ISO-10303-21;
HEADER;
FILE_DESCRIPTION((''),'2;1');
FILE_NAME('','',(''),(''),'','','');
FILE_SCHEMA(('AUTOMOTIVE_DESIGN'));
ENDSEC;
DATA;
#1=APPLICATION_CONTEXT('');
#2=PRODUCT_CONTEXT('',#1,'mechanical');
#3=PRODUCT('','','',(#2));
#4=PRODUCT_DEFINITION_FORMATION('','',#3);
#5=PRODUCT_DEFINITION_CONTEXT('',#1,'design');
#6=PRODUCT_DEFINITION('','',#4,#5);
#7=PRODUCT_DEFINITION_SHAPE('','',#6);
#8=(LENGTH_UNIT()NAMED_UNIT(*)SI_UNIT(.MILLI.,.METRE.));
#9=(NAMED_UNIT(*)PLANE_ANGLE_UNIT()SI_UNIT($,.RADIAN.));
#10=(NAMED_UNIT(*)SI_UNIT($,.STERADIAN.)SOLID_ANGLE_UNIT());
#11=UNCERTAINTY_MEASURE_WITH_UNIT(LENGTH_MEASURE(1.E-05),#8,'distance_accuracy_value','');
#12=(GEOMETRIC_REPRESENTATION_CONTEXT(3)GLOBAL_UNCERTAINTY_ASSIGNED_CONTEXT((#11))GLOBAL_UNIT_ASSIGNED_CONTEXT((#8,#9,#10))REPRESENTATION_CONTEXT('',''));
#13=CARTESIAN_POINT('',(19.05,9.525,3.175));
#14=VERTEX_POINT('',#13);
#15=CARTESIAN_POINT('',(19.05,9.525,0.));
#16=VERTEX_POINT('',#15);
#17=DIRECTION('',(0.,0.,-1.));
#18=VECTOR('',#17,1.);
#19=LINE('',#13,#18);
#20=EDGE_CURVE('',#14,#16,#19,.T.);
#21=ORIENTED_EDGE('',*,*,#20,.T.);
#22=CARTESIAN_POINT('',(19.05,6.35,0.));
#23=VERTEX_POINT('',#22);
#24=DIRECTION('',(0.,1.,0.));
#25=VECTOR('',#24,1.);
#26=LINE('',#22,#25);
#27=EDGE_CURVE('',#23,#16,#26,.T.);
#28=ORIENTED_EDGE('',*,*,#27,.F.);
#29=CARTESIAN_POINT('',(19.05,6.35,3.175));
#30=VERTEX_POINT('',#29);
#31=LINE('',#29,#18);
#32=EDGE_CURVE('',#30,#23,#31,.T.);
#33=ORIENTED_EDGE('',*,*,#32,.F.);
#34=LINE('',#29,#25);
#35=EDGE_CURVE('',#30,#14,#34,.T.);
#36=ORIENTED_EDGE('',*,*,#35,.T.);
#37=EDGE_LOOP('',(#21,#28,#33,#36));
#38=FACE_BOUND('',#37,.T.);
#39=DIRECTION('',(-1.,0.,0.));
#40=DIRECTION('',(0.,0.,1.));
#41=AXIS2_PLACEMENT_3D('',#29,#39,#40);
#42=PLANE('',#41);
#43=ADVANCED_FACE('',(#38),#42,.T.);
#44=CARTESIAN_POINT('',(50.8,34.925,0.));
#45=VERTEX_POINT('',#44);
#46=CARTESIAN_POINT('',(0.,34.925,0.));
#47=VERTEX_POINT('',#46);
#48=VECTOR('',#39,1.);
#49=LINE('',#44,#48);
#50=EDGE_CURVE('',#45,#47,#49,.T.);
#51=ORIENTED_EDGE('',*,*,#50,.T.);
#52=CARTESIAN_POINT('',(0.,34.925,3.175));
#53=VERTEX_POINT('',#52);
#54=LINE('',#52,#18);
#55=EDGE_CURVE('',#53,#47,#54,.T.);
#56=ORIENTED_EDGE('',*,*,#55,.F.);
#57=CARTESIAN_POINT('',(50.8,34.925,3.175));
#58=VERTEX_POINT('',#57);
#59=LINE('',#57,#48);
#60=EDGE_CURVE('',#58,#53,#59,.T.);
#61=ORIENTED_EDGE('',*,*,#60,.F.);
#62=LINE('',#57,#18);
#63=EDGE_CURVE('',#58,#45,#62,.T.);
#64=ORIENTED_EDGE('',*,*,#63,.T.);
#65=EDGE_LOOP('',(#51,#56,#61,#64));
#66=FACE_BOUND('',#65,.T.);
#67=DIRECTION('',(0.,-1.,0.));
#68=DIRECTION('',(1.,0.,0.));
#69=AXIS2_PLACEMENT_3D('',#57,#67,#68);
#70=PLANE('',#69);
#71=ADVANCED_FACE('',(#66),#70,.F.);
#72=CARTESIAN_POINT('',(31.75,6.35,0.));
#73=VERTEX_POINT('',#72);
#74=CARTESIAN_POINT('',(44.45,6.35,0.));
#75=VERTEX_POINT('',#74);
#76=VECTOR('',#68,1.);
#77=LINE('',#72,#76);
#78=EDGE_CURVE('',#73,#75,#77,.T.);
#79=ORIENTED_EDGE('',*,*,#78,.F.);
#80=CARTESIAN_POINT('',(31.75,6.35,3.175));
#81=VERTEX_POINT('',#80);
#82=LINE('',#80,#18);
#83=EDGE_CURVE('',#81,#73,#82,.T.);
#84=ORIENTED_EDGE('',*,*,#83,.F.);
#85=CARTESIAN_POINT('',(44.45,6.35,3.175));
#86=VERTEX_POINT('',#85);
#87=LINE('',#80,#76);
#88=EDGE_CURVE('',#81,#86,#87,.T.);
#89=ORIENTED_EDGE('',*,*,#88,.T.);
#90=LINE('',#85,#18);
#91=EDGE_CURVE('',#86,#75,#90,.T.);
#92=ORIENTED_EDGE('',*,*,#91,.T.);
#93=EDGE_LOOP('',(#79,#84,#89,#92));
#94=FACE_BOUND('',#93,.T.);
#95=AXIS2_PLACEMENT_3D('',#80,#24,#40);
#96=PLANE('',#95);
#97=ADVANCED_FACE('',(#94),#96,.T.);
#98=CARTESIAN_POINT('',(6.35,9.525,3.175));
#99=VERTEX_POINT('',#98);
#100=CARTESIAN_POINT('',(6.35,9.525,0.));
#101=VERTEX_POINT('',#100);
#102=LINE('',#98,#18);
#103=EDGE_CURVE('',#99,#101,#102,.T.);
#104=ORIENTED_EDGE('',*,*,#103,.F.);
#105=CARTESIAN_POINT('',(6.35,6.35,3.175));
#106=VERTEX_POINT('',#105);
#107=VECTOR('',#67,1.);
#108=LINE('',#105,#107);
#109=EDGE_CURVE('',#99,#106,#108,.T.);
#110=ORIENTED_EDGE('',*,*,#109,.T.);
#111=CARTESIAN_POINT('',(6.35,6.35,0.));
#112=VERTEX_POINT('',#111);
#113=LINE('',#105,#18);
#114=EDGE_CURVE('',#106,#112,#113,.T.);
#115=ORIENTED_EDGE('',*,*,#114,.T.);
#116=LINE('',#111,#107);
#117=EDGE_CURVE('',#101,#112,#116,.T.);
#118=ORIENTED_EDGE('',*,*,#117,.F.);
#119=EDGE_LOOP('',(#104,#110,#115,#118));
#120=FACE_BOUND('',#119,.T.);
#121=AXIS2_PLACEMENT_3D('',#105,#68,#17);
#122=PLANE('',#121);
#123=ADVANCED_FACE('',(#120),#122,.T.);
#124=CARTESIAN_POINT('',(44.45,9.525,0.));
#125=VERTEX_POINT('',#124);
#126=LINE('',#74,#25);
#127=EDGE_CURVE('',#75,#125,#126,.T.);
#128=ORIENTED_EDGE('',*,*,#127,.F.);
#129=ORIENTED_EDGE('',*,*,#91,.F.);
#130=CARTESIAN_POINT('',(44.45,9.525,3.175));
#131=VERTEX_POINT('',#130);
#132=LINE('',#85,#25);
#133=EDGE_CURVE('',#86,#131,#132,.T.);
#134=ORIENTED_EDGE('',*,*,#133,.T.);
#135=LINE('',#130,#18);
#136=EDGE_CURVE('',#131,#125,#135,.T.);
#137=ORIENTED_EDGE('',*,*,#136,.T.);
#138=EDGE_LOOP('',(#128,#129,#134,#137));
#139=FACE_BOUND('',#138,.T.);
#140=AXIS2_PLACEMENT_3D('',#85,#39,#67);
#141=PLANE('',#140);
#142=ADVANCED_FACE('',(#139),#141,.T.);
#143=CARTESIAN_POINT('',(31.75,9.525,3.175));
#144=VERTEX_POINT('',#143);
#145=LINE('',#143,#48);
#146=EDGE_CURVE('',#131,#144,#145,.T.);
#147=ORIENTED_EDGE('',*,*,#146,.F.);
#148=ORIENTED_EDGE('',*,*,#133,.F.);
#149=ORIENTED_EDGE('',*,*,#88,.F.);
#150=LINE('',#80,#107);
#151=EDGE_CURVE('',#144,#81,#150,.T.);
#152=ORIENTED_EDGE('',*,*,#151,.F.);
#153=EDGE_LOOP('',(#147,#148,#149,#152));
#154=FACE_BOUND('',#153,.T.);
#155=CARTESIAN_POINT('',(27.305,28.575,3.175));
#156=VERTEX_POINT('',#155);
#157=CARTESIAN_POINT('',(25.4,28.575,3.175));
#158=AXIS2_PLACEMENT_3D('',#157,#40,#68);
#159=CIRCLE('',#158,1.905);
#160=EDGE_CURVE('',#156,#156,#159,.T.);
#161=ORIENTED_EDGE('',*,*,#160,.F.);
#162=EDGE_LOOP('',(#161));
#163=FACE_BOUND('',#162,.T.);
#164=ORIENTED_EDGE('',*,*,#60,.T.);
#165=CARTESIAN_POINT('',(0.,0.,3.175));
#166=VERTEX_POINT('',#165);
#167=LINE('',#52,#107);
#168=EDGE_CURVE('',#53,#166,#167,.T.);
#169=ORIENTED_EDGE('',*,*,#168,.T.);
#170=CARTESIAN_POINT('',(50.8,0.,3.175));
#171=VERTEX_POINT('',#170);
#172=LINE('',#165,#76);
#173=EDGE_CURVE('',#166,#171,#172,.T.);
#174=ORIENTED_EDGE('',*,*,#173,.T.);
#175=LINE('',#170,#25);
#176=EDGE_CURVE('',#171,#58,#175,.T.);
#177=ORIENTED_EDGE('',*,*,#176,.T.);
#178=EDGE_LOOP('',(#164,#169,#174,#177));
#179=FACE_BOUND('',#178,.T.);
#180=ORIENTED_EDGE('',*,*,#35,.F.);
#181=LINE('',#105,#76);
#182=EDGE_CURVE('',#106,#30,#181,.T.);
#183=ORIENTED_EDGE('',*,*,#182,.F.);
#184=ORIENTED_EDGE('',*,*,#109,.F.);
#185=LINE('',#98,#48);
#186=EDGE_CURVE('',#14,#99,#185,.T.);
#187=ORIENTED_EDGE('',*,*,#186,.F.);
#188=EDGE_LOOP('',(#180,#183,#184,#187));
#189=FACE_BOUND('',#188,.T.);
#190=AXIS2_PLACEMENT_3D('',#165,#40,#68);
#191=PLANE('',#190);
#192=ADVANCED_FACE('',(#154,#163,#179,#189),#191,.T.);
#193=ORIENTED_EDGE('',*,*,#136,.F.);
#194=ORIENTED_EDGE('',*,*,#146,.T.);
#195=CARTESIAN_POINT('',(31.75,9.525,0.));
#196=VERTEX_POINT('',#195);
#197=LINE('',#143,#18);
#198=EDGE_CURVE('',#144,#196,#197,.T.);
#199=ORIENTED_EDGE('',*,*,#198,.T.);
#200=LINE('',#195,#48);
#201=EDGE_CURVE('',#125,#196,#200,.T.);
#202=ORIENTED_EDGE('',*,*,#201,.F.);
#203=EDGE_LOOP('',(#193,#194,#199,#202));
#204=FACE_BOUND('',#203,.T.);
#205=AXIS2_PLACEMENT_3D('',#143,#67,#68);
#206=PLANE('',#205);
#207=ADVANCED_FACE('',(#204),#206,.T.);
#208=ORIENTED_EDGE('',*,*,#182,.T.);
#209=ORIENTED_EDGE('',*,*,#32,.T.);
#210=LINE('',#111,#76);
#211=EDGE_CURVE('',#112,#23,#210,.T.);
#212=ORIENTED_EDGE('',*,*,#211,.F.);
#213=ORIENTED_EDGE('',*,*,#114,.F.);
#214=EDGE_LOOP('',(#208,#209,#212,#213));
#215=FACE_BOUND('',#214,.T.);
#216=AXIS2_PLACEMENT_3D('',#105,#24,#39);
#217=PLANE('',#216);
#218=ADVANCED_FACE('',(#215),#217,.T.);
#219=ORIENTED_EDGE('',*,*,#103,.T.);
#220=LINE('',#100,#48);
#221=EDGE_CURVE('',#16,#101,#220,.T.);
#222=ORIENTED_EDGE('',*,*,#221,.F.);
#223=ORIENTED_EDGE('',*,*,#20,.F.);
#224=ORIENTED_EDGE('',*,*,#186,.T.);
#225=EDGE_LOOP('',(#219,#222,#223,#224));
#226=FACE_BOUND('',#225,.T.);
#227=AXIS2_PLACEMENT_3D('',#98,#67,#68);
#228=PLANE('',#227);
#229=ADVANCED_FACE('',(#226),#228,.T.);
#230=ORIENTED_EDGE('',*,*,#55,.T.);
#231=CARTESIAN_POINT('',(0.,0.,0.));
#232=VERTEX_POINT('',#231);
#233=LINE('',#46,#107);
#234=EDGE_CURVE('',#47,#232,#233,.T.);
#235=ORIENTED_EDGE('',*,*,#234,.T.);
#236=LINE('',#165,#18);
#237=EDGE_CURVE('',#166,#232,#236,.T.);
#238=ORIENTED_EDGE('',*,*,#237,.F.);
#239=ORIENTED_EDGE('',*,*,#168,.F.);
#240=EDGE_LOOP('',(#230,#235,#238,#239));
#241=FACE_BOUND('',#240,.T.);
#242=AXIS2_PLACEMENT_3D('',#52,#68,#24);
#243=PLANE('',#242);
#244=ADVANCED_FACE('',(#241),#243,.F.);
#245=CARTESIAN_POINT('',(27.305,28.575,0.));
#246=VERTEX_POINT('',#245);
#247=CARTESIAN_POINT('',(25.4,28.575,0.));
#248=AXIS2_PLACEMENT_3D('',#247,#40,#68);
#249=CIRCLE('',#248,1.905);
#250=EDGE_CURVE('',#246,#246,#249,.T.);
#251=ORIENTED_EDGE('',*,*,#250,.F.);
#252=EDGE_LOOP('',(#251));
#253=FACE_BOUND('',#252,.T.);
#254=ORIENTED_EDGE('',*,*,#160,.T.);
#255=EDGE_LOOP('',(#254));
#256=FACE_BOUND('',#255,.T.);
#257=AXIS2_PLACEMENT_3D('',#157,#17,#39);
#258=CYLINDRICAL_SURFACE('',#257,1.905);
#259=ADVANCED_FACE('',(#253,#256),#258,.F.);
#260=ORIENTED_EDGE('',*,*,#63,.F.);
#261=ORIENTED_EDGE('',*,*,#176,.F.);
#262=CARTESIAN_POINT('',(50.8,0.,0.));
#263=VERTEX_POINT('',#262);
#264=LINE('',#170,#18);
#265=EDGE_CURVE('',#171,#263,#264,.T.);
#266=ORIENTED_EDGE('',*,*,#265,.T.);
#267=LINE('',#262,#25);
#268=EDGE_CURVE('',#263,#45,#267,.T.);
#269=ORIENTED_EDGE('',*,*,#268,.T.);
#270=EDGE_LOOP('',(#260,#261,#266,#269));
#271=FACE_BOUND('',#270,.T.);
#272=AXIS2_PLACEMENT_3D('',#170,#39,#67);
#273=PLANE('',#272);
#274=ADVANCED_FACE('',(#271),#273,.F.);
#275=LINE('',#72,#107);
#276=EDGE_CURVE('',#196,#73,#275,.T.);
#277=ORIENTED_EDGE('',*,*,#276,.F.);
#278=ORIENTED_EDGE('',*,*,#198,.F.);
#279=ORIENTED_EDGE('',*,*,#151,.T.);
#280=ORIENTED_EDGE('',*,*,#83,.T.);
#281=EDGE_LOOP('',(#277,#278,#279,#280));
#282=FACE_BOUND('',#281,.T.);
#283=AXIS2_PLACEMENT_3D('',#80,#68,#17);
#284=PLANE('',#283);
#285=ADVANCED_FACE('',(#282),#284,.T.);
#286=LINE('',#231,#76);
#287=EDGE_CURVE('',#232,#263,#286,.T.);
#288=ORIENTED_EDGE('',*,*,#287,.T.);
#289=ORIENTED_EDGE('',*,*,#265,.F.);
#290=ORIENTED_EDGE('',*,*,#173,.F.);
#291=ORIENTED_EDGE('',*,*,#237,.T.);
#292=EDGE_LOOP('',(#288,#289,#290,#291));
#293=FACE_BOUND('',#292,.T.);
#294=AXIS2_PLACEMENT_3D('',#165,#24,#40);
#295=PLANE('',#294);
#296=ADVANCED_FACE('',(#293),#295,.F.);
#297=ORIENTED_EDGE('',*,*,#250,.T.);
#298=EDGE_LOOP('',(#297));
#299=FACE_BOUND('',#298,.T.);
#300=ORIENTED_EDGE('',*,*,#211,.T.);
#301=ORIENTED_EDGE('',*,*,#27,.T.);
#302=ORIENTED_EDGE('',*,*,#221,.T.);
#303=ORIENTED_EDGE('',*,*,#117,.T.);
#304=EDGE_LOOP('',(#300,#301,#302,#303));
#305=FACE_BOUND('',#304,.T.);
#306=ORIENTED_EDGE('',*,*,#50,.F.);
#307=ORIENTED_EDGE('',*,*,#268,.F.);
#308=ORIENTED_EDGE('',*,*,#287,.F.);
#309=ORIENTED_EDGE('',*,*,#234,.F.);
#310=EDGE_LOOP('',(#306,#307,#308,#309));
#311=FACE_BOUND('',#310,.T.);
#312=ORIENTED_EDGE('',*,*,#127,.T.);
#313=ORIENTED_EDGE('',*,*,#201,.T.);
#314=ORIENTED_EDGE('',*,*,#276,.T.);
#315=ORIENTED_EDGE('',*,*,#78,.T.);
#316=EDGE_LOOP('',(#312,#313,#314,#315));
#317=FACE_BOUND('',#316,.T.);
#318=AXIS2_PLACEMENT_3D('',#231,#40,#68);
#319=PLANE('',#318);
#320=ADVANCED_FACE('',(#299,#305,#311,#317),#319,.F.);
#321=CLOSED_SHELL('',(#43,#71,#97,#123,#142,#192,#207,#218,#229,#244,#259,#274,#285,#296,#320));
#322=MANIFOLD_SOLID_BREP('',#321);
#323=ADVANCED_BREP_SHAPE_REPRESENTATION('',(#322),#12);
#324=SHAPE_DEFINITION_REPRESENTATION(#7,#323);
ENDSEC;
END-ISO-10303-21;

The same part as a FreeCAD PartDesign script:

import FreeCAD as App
import Part
import Sketcher

V = App.Vector
Q = App.Units.Quantity


def add_polygon(sketch, points):
    """Adds a closed chain of lines whose ends are joined by coincident constraints."""
    first, n = sketch.GeometryCount, len(points)
    for a, b in zip(points, points[1:] + points[:1]):
        sketch.addGeometry(Part.LineSegment(App.Vector(*a, 0), App.Vector(*b, 0)), False)
    for i in range(n):
        sketch.addConstraint(Sketcher.Constraint("Coincident", first + i, 2, first + (i + 1) % n, 1))

doc = App.newDocument("Part")
body = doc.addObject("PartDesign::Body", "Body")

# Sketch on XY plane
sketch1 = body.newObject("Sketcher::SketchObject", "Sketch")
sketch1.AttachmentSupport = (doc.getObject("XY_Plane"), [""])
sketch1.MapMode = "FlatFace"
add_polygon(sketch1, [(0, 34.9), (0, 0), (50.8, 0), (50.8, 34.9)])  # lines 0-3
add_polygon(sketch1, [(19.1, 6.3), (6.3, 6.3), (6.3, 9.5), (19.1, 9.5)])  # lines 4-7
add_polygon(sketch1, [(44.5, 6.3), (31.8, 6.3), (31.8, 9.5), (44.5, 9.5)])  # lines 8-11
sketch1.addGeometry(Part.Circle(V(25.4, 28.6, 0), V(0, 0, 1), 1.9), False)  # 12
sketch1.addConstraint(Sketcher.Constraint("Vertical", 0))
sketch1.addConstraint(Sketcher.Constraint("Horizontal", 1))
sketch1.addConstraint(Sketcher.Constraint("Vertical", 2))
sketch1.addConstraint(Sketcher.Constraint("Horizontal", 3))
sketch1.addConstraint(Sketcher.Constraint("Horizontal", 4))
sketch1.addConstraint(Sketcher.Constraint("Vertical", 5))
sketch1.addConstraint(Sketcher.Constraint("Horizontal", 6))
sketch1.addConstraint(Sketcher.Constraint("Vertical", 7))
sketch1.addConstraint(Sketcher.Constraint("Horizontal", 8))
sketch1.addConstraint(Sketcher.Constraint("Vertical", 9))
sketch1.addConstraint(Sketcher.Constraint("Horizontal", 10))
sketch1.addConstraint(Sketcher.Constraint("Vertical", 11))
sketch1.addConstraint(Sketcher.Constraint("Coincident", 0, 2, -1, 1))
sketch1.addConstraint(Sketcher.Constraint("Horizontal", 7, 2, 8, 2))
sketch1.addConstraint(Sketcher.Constraint("Horizontal", 6, 2, 9, 2))
sketch1.addConstraint(Sketcher.Constraint("Equal", 6, 8))
sketch1.addConstraint(Sketcher.Constraint("Diameter", 12, Q("0.15 in")))
sketch1.addConstraint(Sketcher.Constraint("DistanceX", 1, 1, 1, 2, Q("2 in")))
sketch1.addConstraint(Sketcher.Constraint("DistanceX", 4, 2, 4, 1, Q("0.5 in")))
sketch1.addConstraint(Sketcher.Constraint("DistanceX", -1, 1, 12, 3, Q("1 in")))
sketch1.addConstraint(Sketcher.Constraint("DistanceY", 5, 2, 3, 2, Q("1 in")))
sketch1.addConstraint(Sketcher.Constraint("DistanceX", 4, 2, 8, 2, Q("1 in")))
sketch1.addConstraint(Sketcher.Constraint("DistanceY", 0, 2, 0, 1, Q("1.375 in")))
sketch1.addConstraint(Sketcher.Constraint("DistanceY", 5, 1, 5, 2, Q("0.125 in")))
sketch1.addConstraint(Sketcher.Constraint("DistanceX", -1, 1, 4, 2, Q("0.25 in")))
sketch1.addConstraint(Sketcher.Constraint("DistanceY", 12, 3, 2, 2, Q("0.25 in")))
pad1 = body.newObject("PartDesign::Pad", "Pad")
pad1.Profile = sketch1
pad1.Length = Q("0.125 in")

doc.recompute()
